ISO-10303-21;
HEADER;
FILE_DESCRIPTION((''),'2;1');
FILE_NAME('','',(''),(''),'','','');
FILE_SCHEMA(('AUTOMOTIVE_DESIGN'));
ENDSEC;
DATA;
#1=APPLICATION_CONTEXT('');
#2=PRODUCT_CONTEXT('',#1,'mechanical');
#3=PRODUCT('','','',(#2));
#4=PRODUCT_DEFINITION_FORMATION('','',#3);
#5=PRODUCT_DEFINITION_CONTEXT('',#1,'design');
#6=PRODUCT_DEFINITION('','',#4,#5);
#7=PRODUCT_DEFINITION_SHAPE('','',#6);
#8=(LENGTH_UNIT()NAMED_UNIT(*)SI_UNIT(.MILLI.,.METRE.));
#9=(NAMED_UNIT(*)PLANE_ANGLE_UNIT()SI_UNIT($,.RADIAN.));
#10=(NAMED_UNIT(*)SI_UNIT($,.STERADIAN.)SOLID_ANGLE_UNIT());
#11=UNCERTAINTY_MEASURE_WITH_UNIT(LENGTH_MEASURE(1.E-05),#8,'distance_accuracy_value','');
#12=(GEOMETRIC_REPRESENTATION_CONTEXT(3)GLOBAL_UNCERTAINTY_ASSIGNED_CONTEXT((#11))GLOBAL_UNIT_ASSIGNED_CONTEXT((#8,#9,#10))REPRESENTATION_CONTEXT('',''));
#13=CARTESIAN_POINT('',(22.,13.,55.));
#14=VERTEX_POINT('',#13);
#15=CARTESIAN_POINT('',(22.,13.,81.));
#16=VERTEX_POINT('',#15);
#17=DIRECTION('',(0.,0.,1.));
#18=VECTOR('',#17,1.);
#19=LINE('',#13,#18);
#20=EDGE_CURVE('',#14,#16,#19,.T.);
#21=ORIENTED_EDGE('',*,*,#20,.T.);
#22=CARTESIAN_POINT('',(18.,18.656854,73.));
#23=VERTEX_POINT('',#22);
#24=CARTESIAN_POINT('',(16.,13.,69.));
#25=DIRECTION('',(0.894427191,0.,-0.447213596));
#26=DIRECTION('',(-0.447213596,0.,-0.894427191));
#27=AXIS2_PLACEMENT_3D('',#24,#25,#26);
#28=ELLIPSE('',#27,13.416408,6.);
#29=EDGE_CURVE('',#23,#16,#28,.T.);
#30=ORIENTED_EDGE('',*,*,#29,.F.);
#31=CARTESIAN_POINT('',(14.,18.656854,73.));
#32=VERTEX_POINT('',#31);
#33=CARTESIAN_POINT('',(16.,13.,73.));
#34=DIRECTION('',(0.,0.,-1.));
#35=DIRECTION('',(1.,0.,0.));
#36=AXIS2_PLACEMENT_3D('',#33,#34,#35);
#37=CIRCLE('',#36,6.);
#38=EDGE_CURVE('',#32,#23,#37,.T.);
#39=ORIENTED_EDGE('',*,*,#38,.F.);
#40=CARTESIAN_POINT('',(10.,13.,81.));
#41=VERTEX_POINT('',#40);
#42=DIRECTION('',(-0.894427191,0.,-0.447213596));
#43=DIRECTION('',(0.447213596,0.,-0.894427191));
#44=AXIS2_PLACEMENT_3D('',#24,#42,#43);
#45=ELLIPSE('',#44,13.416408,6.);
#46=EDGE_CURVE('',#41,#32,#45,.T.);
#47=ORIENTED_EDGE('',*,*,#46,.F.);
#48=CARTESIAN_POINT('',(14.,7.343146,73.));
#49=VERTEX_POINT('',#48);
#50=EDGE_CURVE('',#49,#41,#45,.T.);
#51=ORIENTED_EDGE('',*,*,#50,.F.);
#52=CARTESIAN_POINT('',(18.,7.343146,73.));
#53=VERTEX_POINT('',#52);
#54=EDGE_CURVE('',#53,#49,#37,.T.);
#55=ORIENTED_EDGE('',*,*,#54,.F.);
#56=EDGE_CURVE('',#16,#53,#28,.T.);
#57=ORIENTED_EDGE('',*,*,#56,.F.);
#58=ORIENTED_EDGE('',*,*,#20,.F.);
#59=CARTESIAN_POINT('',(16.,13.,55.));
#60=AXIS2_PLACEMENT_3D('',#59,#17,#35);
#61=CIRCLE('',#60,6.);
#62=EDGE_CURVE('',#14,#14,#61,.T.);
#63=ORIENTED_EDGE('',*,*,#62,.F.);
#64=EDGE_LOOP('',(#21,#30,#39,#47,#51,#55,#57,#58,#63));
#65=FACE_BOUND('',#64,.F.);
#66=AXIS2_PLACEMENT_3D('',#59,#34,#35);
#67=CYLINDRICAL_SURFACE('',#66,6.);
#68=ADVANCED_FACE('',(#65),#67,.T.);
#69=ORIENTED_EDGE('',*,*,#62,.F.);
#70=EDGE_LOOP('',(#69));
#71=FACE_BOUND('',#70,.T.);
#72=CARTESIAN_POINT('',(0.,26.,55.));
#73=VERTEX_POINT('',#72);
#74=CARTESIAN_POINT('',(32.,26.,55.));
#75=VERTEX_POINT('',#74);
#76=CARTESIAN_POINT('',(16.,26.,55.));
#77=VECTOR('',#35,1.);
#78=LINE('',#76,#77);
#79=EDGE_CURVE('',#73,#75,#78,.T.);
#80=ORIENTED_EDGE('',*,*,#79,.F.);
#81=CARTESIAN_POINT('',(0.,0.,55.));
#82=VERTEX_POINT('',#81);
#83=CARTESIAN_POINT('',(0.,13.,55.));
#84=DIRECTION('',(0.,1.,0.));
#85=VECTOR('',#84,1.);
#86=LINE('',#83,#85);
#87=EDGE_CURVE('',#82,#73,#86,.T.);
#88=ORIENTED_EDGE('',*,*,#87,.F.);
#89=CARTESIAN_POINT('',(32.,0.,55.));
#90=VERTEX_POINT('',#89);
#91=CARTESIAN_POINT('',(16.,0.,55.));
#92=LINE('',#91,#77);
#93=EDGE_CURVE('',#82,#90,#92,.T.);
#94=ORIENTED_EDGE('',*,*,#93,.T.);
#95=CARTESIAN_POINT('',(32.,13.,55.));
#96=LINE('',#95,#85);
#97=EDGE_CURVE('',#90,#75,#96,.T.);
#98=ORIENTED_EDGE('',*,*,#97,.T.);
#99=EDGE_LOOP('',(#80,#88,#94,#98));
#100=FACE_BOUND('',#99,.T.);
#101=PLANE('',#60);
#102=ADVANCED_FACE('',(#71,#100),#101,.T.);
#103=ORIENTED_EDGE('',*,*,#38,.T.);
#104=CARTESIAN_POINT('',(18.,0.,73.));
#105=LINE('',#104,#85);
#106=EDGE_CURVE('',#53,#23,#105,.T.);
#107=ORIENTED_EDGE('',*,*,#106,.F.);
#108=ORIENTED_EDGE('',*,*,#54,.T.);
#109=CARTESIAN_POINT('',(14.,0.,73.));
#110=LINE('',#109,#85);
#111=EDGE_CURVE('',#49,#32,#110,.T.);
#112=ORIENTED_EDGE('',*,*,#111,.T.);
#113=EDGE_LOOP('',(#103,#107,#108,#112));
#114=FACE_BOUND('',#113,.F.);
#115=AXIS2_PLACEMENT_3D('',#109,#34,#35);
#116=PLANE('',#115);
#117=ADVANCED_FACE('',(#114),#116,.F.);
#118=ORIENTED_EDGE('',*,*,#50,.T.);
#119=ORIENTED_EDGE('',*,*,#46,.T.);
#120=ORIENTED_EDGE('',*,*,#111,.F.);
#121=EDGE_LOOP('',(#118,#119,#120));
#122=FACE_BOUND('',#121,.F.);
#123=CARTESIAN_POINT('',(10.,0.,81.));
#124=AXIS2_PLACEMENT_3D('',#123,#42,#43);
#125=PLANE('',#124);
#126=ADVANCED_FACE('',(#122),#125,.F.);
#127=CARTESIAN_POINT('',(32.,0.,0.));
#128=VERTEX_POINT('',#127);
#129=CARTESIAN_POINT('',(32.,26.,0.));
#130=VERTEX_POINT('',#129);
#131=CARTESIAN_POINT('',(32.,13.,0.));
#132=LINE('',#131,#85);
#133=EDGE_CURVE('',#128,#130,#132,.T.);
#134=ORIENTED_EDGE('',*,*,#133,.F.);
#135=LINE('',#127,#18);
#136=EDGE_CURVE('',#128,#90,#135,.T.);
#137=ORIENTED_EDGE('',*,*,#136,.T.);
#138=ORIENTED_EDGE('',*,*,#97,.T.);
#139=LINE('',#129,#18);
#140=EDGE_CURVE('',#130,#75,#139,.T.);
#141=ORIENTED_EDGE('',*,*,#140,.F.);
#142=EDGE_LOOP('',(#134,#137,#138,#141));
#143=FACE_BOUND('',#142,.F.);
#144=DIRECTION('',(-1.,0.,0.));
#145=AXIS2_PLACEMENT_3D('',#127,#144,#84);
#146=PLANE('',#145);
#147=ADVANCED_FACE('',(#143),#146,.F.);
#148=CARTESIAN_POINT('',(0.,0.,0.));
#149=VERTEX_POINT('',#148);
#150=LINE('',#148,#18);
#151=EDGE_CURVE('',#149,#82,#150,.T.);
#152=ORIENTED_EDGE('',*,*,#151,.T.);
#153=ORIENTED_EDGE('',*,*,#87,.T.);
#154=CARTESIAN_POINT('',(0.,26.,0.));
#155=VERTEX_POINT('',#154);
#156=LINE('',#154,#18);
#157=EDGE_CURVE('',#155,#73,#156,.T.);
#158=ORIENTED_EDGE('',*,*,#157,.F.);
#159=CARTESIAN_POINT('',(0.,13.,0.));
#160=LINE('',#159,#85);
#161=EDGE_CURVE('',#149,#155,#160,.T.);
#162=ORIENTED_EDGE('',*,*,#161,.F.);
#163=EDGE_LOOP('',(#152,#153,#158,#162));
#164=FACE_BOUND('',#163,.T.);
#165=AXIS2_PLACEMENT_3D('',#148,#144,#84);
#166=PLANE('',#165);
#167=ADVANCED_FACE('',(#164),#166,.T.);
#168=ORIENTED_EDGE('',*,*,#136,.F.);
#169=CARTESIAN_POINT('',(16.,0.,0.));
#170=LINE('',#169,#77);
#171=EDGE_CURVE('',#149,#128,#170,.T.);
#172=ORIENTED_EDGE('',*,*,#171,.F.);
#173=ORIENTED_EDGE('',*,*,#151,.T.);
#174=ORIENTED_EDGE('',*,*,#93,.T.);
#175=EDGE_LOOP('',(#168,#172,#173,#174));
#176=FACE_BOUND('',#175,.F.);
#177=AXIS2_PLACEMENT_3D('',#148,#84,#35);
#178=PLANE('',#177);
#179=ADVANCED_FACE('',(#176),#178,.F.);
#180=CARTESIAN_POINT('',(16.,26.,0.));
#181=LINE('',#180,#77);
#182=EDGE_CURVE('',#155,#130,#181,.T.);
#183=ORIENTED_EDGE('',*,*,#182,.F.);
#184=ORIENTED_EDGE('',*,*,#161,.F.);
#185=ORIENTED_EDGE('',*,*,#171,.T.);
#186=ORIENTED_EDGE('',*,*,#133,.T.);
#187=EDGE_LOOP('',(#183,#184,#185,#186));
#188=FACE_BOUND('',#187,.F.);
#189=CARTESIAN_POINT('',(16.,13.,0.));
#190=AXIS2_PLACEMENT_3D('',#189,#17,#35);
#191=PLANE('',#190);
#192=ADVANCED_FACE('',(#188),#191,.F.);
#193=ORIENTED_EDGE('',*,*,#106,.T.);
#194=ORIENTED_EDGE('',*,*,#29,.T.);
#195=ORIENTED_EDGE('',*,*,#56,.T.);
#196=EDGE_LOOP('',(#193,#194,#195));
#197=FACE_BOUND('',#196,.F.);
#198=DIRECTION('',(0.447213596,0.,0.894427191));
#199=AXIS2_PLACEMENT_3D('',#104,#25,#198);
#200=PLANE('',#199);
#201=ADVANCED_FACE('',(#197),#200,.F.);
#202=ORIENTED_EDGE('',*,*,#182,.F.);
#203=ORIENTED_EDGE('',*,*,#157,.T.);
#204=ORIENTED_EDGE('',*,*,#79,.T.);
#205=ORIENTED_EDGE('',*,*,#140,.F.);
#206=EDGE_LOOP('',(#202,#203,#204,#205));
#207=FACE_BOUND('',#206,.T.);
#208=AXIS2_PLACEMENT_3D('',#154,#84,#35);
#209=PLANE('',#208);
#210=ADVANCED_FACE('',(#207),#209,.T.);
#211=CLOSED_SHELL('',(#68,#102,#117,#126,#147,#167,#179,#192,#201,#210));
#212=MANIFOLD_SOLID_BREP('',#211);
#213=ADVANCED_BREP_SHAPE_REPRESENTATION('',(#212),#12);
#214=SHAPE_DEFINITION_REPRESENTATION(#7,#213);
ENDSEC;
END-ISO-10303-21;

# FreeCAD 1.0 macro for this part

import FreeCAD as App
import Part
import Sketcher
from FreeCAD import Vector
Q = App.Units.Quantity

doc = App.newDocument("Part")
body = doc.addObject("PartDesign::Body", "Body")

sketch1 = body.newObject("Sketcher::SketchObject", "Sketch")
sketch1.AttachmentSupport = (doc.getObject("XY_Plane"), [""])
sketch1.MapMode = "FlatFace"
sketch1.addGeometry([
    Part.LineSegment(Vector(0, 26, 0), Vector(0, 0, 0)),
    Part.LineSegment(Vector(0, 0, 0), Vector(32, 0, 0)),
    Part.LineSegment(Vector(32, 0, 0), Vector(32, 26, 0)),
    Part.LineSegment(Vector(32, 26, 0), Vector(0, 26, 0)),
], False)
sketch1.addConstraint([
    Sketcher.Constraint("Coincident", 0, 2, 1, 1),
    Sketcher.Constraint("Coincident", 1, 2, 2, 1),
    Sketcher.Constraint("Coincident", 2, 2, 3, 1),
    Sketcher.Constraint("Coincident", 3, 2, 0, 1),
    Sketcher.Constraint("Vertical", 0),
    Sketcher.Constraint("Horizontal", 1),
    Sketcher.Constraint("Vertical", 2),
    Sketcher.Constraint("Horizontal", 3),
    Sketcher.Constraint("Coincident", 0, 2, -1, 1),
    Sketcher.Constraint("DistanceX", 1, 1, 1, 2, Q("32 mm")),
    Sketcher.Constraint("DistanceY", 0, 2, 0, 1, Q("26 mm")),
])
pad1 = body.newObject("PartDesign::Pad", "Pad")
pad1.Profile = sketch1
pad1.Length = 55

sketch2 = body.newObject("Sketcher::SketchObject", "Sketch001")
sketch2.AttachmentSupport = (doc.getObject("XY_Plane"), [""])
sketch2.MapMode = "FlatFace"
sketch2.AttachmentOffset = App.Placement(Vector(0, 0, 55), App.Rotation())
sketch2.addGeometry(Part.Circle(Vector(16, 13, 0), Vector(0, 0, 1), 6), False)
sketch2.addConstraint([
    Sketcher.Constraint("Diameter", 0, Q("12 mm")),
    Sketcher.Constraint("DistanceX", -1, 1, 0, 3, Q("16 mm")),
    Sketcher.Constraint("DistanceY", -1, 1, 0, 3, Q("13 mm")),
])
pad2 = body.newObject("PartDesign::Pad", "Pad001")
pad2.Profile = sketch2
pad2.Length = 26

sketch3 = body.newObject("Sketcher::SketchObject", "Sketch002")
sketch3.AttachmentSupport = (doc.getObject("XZ_Plane"), [""])
sketch3.MapMode = "FlatFace"
sketch3.addGeometry([
    Part.LineSegment(Vector(22, 81, 0), Vector(10, 81, 0)),
    Part.LineSegment(Vector(10, 81, 0), Vector(14, 73, 0)),
    Part.LineSegment(Vector(14, 73, 0), Vector(18, 73, 0)),
    Part.LineSegment(Vector(18, 73, 0), Vector(22, 81, 0)),
], False)
sketch3.addConstraint([
    Sketcher.Constraint("Coincident", 0, 2, 1, 1),
    Sketcher.Constraint("Coincident", 1, 2, 2, 1),
    Sketcher.Constraint("Coincident", 2, 2, 3, 1),
    Sketcher.Constraint("Coincident", 3, 2, 0, 1),
    Sketcher.Constraint("Horizontal", 0),
    Sketcher.Constraint("Horizontal", 2),
    Sketcher.Constraint("Equal", 1, 3),
    Sketcher.Constraint("DistanceX", 0, 2, 0, 1, Q("12 mm")),
    Sketcher.Constraint("DistanceX", 2, 1, 2, 2, Q("4 mm")),
    Sketcher.Constraint("DistanceX", -1, 1, 0, 2, Q("10 mm")),
    Sketcher.Constraint("DistanceY", -1, 1, 0, 2, Q("81 mm")),
    Sketcher.Constraint("DistanceY", -1, 1, 1, 2, Q("73 mm")),
])
pocket1 = body.newObject("PartDesign::Pocket", "Pocket")
pocket1.Profile = sketch3
pocket1.Length = 25

doc.recompute()
